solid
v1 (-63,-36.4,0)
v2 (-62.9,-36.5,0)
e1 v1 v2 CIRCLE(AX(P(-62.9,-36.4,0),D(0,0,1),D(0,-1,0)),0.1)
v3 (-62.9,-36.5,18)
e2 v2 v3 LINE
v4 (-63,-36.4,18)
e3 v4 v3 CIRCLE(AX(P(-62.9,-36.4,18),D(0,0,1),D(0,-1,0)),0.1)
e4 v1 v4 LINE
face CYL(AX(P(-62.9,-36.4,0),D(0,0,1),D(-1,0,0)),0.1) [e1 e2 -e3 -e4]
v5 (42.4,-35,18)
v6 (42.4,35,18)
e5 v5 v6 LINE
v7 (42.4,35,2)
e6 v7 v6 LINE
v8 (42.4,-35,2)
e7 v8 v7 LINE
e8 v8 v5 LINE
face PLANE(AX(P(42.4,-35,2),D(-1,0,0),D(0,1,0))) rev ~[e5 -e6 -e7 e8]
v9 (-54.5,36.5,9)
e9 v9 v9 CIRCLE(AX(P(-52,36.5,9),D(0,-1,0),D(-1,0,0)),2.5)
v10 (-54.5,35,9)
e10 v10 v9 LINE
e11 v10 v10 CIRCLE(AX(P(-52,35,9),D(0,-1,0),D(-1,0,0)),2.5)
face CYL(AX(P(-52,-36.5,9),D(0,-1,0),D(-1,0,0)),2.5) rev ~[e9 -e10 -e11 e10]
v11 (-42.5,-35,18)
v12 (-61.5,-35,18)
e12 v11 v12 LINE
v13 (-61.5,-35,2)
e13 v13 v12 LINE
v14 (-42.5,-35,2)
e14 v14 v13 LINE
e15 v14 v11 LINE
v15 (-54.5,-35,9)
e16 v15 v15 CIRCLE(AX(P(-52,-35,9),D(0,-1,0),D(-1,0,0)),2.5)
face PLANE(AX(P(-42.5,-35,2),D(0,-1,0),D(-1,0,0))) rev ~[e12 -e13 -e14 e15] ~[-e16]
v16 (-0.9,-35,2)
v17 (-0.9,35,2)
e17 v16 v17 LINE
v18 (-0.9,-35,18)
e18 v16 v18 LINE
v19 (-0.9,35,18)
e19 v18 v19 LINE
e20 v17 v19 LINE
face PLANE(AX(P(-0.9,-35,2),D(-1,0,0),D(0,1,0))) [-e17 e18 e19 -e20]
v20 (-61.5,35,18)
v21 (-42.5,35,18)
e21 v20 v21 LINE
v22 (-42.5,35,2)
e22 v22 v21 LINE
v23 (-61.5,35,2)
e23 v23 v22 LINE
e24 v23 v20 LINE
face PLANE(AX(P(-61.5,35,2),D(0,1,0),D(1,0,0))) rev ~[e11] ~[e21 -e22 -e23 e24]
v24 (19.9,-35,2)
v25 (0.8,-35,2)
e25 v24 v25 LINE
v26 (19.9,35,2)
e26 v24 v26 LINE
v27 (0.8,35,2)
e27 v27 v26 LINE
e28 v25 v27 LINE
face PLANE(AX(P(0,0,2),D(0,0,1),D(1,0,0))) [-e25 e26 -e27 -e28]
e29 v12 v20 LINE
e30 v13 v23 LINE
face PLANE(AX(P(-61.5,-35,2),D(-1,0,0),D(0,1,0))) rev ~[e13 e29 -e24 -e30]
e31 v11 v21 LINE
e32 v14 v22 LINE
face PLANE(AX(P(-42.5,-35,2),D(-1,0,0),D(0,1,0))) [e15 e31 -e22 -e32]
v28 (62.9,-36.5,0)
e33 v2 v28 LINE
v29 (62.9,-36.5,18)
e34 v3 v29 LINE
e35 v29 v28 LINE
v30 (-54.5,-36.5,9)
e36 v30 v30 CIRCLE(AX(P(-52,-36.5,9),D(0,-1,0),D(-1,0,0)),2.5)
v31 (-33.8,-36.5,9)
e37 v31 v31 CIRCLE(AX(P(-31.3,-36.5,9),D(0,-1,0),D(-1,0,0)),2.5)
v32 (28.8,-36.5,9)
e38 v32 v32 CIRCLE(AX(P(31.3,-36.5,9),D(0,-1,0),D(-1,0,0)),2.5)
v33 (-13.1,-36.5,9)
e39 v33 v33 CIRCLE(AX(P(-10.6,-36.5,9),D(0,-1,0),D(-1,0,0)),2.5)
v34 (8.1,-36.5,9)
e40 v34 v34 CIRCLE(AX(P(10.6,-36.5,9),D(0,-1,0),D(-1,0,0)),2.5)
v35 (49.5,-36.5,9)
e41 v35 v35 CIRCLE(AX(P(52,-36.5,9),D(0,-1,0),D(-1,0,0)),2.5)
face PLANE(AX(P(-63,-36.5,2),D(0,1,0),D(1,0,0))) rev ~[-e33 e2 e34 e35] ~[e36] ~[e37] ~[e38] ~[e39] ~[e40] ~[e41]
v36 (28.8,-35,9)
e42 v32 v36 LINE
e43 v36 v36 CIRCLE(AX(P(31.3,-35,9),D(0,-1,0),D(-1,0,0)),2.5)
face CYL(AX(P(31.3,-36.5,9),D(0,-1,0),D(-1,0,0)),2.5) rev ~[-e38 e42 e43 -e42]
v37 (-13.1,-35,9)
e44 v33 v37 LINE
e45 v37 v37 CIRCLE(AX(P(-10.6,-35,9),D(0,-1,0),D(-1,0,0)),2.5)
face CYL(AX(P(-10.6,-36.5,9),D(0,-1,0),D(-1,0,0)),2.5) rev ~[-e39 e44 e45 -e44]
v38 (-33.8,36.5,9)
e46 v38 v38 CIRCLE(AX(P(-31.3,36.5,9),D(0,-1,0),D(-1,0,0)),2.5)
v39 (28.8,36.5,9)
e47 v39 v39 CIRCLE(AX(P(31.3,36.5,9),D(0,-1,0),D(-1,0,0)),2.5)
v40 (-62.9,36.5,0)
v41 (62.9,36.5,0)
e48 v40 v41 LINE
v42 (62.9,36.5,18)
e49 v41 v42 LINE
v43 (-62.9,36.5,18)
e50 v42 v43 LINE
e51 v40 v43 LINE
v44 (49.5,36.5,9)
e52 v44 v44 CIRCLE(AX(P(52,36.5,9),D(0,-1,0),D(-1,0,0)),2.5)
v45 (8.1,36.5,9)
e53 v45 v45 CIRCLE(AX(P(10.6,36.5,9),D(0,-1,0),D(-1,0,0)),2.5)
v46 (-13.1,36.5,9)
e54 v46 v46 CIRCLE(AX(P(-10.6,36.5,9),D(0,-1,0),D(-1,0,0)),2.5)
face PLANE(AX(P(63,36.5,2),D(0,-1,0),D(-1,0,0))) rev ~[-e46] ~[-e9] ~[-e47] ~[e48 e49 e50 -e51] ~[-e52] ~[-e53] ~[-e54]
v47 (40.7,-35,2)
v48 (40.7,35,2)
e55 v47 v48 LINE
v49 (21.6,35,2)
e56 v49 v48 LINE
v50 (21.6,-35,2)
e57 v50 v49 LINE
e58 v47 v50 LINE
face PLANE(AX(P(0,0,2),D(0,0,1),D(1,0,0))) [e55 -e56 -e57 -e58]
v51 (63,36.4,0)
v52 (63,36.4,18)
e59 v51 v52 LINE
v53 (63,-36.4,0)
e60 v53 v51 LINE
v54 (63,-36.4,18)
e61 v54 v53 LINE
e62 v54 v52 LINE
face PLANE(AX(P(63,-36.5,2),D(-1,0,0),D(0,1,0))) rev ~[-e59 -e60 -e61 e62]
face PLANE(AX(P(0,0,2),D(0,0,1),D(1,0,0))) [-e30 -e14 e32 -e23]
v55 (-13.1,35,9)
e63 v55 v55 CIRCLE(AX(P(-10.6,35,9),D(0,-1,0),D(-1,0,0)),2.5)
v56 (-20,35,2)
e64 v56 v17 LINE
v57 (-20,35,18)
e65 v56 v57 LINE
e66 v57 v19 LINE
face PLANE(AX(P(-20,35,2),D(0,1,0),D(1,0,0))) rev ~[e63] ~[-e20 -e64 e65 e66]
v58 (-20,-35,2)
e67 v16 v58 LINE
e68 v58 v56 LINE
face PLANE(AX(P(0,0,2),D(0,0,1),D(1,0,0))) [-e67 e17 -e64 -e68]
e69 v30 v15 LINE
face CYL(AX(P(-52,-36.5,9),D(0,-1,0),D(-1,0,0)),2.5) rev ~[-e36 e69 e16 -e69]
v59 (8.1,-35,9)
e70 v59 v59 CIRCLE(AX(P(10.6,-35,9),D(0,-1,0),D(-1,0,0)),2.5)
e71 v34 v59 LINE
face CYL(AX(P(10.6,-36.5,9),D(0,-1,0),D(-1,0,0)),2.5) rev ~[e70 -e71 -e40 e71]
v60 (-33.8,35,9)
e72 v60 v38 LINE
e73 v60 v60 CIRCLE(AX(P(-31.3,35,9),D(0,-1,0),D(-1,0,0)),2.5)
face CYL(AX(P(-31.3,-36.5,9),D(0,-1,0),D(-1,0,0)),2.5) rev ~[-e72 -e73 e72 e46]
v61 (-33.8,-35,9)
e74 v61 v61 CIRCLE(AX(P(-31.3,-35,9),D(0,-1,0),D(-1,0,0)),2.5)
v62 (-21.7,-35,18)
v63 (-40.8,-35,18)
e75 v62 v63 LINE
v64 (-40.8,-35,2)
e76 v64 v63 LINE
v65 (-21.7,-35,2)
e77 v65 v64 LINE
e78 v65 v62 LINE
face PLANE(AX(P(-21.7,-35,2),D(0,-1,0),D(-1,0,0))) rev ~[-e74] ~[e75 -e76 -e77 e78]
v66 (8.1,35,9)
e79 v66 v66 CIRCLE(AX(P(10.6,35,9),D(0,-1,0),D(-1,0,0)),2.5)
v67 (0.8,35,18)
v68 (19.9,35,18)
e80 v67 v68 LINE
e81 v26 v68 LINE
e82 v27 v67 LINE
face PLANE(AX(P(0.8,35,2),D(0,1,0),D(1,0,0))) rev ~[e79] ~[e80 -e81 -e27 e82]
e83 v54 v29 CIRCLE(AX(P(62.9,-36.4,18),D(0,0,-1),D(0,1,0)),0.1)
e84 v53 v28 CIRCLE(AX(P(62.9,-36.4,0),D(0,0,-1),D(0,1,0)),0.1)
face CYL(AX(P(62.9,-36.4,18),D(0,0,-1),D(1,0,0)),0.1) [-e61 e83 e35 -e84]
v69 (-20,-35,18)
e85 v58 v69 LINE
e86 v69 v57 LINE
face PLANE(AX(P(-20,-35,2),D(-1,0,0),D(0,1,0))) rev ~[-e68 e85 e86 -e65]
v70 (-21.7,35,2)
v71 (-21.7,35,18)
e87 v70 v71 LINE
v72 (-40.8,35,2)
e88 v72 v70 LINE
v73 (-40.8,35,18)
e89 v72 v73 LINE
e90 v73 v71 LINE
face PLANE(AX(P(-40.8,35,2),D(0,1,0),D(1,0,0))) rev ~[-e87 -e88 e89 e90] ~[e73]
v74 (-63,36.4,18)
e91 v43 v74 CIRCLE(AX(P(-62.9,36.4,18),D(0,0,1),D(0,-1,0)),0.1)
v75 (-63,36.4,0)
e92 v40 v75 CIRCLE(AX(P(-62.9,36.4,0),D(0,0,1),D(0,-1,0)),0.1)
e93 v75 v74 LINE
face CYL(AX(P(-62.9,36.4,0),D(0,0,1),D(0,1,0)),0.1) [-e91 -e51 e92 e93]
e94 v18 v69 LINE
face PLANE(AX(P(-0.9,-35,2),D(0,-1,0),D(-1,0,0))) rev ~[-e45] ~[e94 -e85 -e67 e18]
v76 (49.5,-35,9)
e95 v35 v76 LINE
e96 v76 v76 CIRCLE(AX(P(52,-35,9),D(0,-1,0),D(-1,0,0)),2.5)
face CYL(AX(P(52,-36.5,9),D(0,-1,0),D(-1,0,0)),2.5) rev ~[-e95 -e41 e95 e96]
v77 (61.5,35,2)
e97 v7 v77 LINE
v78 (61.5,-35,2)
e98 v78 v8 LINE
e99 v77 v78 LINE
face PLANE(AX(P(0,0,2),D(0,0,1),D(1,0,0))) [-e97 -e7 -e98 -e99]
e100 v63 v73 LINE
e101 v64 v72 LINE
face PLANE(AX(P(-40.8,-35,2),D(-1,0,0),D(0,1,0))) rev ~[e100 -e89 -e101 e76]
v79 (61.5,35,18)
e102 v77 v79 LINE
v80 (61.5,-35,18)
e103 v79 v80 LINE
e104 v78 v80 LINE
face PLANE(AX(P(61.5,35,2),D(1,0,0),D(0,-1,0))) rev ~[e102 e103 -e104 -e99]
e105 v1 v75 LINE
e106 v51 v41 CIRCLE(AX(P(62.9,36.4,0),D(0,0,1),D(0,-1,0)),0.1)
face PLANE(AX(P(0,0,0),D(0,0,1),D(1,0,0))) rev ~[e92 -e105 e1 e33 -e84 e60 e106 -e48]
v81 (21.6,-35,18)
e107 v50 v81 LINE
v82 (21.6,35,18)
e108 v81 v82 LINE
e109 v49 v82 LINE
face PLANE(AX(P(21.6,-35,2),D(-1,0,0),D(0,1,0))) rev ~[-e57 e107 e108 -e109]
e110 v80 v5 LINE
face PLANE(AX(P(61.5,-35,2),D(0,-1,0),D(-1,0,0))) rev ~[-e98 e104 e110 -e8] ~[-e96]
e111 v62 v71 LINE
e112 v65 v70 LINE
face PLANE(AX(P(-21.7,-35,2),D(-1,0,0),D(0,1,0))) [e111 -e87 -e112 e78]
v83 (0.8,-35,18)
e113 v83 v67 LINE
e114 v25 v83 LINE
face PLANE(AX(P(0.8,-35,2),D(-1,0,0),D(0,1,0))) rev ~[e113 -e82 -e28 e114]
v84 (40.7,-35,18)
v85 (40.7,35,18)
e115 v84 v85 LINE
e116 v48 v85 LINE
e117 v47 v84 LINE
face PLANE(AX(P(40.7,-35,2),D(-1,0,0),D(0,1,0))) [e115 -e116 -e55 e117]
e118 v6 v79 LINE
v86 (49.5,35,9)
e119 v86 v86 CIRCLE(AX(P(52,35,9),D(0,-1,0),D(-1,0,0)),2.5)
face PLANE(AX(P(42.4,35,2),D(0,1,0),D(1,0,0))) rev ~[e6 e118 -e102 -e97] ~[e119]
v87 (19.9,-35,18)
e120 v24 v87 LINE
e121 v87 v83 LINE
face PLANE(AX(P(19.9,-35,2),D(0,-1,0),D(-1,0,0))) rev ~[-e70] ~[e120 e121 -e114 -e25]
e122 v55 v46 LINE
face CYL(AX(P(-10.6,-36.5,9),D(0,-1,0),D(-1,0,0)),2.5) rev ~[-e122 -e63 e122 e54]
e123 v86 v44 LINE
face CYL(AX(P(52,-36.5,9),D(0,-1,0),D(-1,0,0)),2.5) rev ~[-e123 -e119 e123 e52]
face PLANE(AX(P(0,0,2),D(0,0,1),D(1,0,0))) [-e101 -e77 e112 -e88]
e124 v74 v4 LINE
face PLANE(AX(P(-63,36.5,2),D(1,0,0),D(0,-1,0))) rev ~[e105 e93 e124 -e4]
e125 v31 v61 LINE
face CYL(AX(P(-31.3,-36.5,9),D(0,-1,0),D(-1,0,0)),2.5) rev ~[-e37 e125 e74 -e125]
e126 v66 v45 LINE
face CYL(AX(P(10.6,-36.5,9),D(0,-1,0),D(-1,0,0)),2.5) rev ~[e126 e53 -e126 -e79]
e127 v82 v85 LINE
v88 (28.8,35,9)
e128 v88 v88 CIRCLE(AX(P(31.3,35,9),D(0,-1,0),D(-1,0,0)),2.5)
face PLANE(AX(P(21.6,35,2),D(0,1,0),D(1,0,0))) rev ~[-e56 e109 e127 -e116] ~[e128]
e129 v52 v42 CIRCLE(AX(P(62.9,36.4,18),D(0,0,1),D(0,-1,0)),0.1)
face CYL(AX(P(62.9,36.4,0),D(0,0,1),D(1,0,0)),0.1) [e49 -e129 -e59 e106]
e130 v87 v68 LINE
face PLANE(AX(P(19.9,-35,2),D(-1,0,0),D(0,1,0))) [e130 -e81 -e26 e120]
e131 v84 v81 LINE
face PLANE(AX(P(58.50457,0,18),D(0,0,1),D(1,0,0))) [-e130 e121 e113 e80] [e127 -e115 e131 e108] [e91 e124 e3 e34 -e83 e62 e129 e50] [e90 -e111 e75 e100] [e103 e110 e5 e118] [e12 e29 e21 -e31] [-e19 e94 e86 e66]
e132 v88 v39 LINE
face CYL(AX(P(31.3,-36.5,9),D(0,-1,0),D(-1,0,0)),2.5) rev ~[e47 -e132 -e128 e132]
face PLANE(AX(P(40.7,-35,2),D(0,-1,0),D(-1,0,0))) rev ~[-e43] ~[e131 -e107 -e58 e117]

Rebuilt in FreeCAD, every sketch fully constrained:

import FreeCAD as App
import Part
import Sketcher
Q = App.Units.Quantity


def edges_at(feature, points):
    """Names of the edges that pass closest to the given points."""
    edges = feature.Shape.Edges
    near = lambda p: min(range(len(edges)), key=lambda i: edges[i].distToShape(Part.Vertex(*p))[0])
    return sorted({f"Edge{near(p) + 1}" for p in points})


def add_polygon(sketch, points):
    """Adds a closed chain of lines whose ends are joined by coincident constraints."""
    first, n = sketch.GeometryCount, len(points)
    for a, b in zip(points, points[1:] + points[:1]):
        sketch.addGeometry(Part.LineSegment(App.Vector(*a, 0), App.Vector(*b, 0)), False)
    for i in range(n):
        sketch.addConstraint(Sketcher.Constraint("Coincident", first + i, 2, first + (i + 1) % n, 1))

doc = App.newDocument("Part")
params = doc.addObject("Spreadsheet::Sheet", "Params")
for row, (alias, value) in enumerate([
    ("sketch1_width", "126 mm"),
    ("sketch1_height", "73 mm"),
    ("pad1_length", "2 mm"),
    ("sketch2_width", "126 mm"),
    ("sketch2_width2", "19 mm"),
    ("sketch2_height", "73 mm"),
    ("sketch2_height2", "70 mm"),
    ("sketch2_width3", "19.1 mm"),
    ("pad2_length", "16 mm"),
    ("sketch3_diameter", "5 mm"),
    ("pocket1_length", "100 mm"),
    ("fillet_radius", "0.1 mm"),
], start=1):
    params.set(f"A{row}", alias)
    params.set(f"B{row}", "=" + value)
    params.setAlias(f"B{row}", alias)

body = doc.addObject("PartDesign::Body", "Body")

# Sketch on XY plane
sketch1 = body.newObject("Sketcher::SketchObject", "Sketch")
sketch1.AttachmentSupport = (doc.getObject("XY_Plane"), [""])
sketch1.MapMode = "FlatFace"
add_polygon(sketch1, [(-63, 36.5), (-63, -36.5), (63, -36.5), (63, 36.5)])  # lines 0-3
sketch1.addConstraint([
    Sketcher.Constraint("Vertical", 0),
    Sketcher.Constraint("Horizontal", 1),
    Sketcher.Constraint("Vertical", 2),
    Sketcher.Constraint("Horizontal", 3),
    Sketcher.Constraint("Symmetric", 0, 2, 2, 2, -1, 1),
    Sketcher.Constraint("DistanceX", 1, 1, 1, 2, Q("126 mm")),
    Sketcher.Constraint("DistanceY", 0, 2, 0, 1, Q("73 mm")),
])
sketch1.setExpression("Constraints[9]", "Params.sketch1_width")
sketch1.setExpression("Constraints[10]", "Params.sketch1_height")
pad1 = body.newObject("PartDesign::Pad", "Pad")
pad1.Profile = sketch1
pad1.setExpression("Length", "Params.pad1_length")

# Sketch on XY plane
sketch2 = body.newObject("Sketcher::SketchObject", "Sketch001")
sketch2.AttachmentSupport = (doc.getObject("XY_Plane"), [""])
sketch2.MapMode = "FlatFace"
sketch2.AttachmentOffset = App.Placement(App.Vector(0, 0, 2), App.Rotation())
add_polygon(sketch2, [(63, -36.5), (63, 36.5), (-63, 36.5), (-63, -36.5)])  # lines 0-3
add_polygon(sketch2, [(61.5, 35), (61.5, -35), (42.4, -35), (42.4, 35)])  # lines 4-7
add_polygon(sketch2, [(40.7, -35), (21.6, -35), (21.6, 35), (40.7, 35)])  # lines 8-11
add_polygon(sketch2, [(19.9, -35), (0.8, -35), (0.8, 35), (19.9, 35)])  # lines 12-15
add_polygon(sketch2, [(-0.9, -35), (-20, -35), (-20, 35), (-0.9, 35)])  # lines 16-19
add_polygon(sketch2, [(-21.7, -35), (-40.8, -35), (-40.8, 35), (-21.7, 35)])  # lines 20-23
add_polygon(sketch2, [(-42.5, -35), (-61.5, -35), (-61.5, 35), (-42.5, 35)])  # lines 24-27
sketch2.addConstraint([
    Sketcher.Constraint("Vertical", 0),
    Sketcher.Constraint("Horizontal", 1),
    Sketcher.Constraint("Vertical", 2),
    Sketcher.Constraint("Horizontal", 3),
    Sketcher.Constraint("Vertical", 4),
    Sketcher.Constraint("Horizontal", 5),
    Sketcher.Constraint("Vertical", 6),
    Sketcher.Constraint("Horizontal", 7),
    Sketcher.Constraint("Horizontal", 8),
    Sketcher.Constraint("Vertical", 9),
    Sketcher.Constraint("Horizontal", 10),
    Sketcher.Constraint("Vertical", 11),
    Sketcher.Constraint("Horizontal", 12),
    Sketcher.Constraint("Vertical", 13),
    Sketcher.Constraint("Horizontal", 14),
    Sketcher.Constraint("Vertical", 15),
    Sketcher.Constraint("Horizontal", 16),
    Sketcher.Constraint("Vertical", 17),
    Sketcher.Constraint("Horizontal", 18),
    Sketcher.Constraint("Vertical", 19),
    Sketcher.Constraint("Horizontal", 20),
    Sketcher.Constraint("Vertical", 21),
    Sketcher.Constraint("Horizontal", 22),
    Sketcher.Constraint("Vertical", 23),
    Sketcher.Constraint("Horizontal", 24),
    Sketcher.Constraint("Vertical", 25),
    Sketcher.Constraint("Horizontal", 26),
    Sketcher.Constraint("Vertical", 27),
    Sketcher.Constraint("Symmetric", 0, 2, 2, 2, -1, 1),
    Sketcher.Constraint("Symmetric", 7, 2, 24, 2, -1, 1),
    Sketcher.Constraint("Horizontal", 5, 2, 8, 2),
    Sketcher.Constraint("Horizontal", 7, 2, 9, 2),
    Sketcher.Constraint("Horizontal", 11, 2, 12, 2),
    Sketcher.Constraint("Horizontal", 10, 2, 13, 2),
    Sketcher.Constraint("Horizontal", 15, 2, 16, 2),
    Sketcher.Constraint("Horizontal", 14, 2, 17, 2),
    Sketcher.Constraint("Horizontal", 19, 2, 20, 2),
    Sketcher.Constraint("Horizontal", 18, 2, 21, 2),
    Sketcher.Constraint("Horizontal", 23, 2, 24, 2),
    Sketcher.Constraint("Horizontal", 22, 2, 25, 2),
    Sketcher.Constraint("Equal", 7, 8),
    Sketcher.Constraint("Equal", 10, 12),
    Sketcher.Constraint("Equal", 14, 16),
    Sketcher.Constraint("Equal", 18, 20),
    Sketcher.Constraint("DistanceX", 1, 2, 1, 1, Q("126 mm")),
    Sketcher.Constraint("DistanceX", 24, 2, 24, 1, Q("19 mm")),
    Sketcher.Constraint("DistanceY", 0, 1, 0, 2, Q("73 mm")),
    Sketcher.Constraint("DistanceY", 4, 2, 4, 1, Q("70 mm")),
    Sketcher.Constraint("DistanceX", 5, 2, 5, 1, Q("19.1 mm")),
    Sketcher.Constraint("DistanceX", 16, 2, -1, 1, Q("20 mm")),
    Sketcher.Constraint("DistanceX", -1, 1, 4, 2, Q("61.5 mm")),
    Sketcher.Constraint("DistanceX", -1, 1, 8, 2, Q("21.6 mm")),
    Sketcher.Constraint("DistanceX", -1, 1, 12, 2, Q("0.8 mm")),
    Sketcher.Constraint("DistanceX", 20, 2, -1, 1, Q("40.8 mm")),
])
sketch2.setExpression("Constraints[72]", "Params.sketch2_width")
sketch2.setExpression("Constraints[73]", "Params.sketch2_width2")
sketch2.setExpression("Constraints[74]", "Params.sketch2_height")
sketch2.setExpression("Constraints[75]", "Params.sketch2_height2")
sketch2.setExpression("Constraints[76]", "Params.sketch2_width3")
pad2 = body.newObject("PartDesign::Pad", "Pad001")
pad2.Profile = sketch2
pad2.setExpression("Length", "Params.pad2_length")

# Sketch on XZ plane
sketch3 = body.newObject("Sketcher::SketchObject", "Sketch002")
sketch3.AttachmentSupport = (doc.getObject("XZ_Plane"), [""])
sketch3.MapMode = "FlatFace"
sketch3.AttachmentOffset = App.Placement(App.Vector(0, 0, 36.5), App.Rotation())
sketch3.addGeometry([
    Part.Circle(App.Vector(-52, 9, 0), App.Vector(0, 0, 1), 2.5),  # 0
    Part.Circle(App.Vector(52, 9, 0), App.Vector(0, 0, 1), 2.5),  # 1
    Part.Circle(App.Vector(31.3, 9, 0), App.Vector(0, 0, 1), 2.5),  # 2
    Part.Circle(App.Vector(10.6, 9, 0), App.Vector(0, 0, 1), 2.5),  # 3
    Part.Circle(App.Vector(-10.6, 9, 0), App.Vector(0, 0, 1), 2.5),  # 4
    Part.Circle(App.Vector(-31.3, 9, 0), App.Vector(0, 0, 1), 2.5),  # 5
], False)
sketch3.addConstraint([
    Sketcher.Constraint("Equal", 0, 1),
    Sketcher.Constraint("Equal", 1, 2),
    Sketcher.Constraint("Equal", 2, 3),
    Sketcher.Constraint("Equal", 3, 4),
    Sketcher.Constraint("Equal", 4, 5),
    Sketcher.Constraint("Symmetric", 0, 3, 1, 3, -2),
    Sketcher.Constraint("Symmetric", 3, 3, 4, 3, -2),
    Sketcher.Constraint("Symmetric", 2, 3, 5, 3, -2),
    Sketcher.Constraint("Horizontal", 1, 3, 2, 3),
    Sketcher.Constraint("Horizontal", 2, 3, 3, 3),
    Sketcher.Constraint("Diameter", 0, Q("5 mm")),
    Sketcher.Constraint("DistanceX", 0, 3, -1, 1, Q("52 mm")),
    Sketcher.Constraint("DistanceY", -1, 1, 0, 3, Q("9 mm")),
    Sketcher.Constraint("DistanceX", -1, 1, 2, 3, Q("31.3 mm")),
    Sketcher.Constraint("DistanceX", -1, 1, 3, 3, Q("10.6 mm")),
])
sketch3.setExpression("Constraints[10]", "Params.sketch3_diameter")
pocket1 = body.newObject("PartDesign::Pocket", "Pocket")
pocket1.Profile = sketch3
pocket1.setExpression("Length", "Params.pocket1_length")
doc.recompute()

fillet = body.newObject("PartDesign::Fillet", "Fillet")
fillet.Base = (pocket1, edges_at(pocket1, [
    (-63, -36.5, 9),
    (63, -36.5, 9),
    (63, 36.5, 9),
    (-63, 36.5, 9),
]))
fillet.setExpression("Radius", "Params.fillet_radius")

doc.recompute()
